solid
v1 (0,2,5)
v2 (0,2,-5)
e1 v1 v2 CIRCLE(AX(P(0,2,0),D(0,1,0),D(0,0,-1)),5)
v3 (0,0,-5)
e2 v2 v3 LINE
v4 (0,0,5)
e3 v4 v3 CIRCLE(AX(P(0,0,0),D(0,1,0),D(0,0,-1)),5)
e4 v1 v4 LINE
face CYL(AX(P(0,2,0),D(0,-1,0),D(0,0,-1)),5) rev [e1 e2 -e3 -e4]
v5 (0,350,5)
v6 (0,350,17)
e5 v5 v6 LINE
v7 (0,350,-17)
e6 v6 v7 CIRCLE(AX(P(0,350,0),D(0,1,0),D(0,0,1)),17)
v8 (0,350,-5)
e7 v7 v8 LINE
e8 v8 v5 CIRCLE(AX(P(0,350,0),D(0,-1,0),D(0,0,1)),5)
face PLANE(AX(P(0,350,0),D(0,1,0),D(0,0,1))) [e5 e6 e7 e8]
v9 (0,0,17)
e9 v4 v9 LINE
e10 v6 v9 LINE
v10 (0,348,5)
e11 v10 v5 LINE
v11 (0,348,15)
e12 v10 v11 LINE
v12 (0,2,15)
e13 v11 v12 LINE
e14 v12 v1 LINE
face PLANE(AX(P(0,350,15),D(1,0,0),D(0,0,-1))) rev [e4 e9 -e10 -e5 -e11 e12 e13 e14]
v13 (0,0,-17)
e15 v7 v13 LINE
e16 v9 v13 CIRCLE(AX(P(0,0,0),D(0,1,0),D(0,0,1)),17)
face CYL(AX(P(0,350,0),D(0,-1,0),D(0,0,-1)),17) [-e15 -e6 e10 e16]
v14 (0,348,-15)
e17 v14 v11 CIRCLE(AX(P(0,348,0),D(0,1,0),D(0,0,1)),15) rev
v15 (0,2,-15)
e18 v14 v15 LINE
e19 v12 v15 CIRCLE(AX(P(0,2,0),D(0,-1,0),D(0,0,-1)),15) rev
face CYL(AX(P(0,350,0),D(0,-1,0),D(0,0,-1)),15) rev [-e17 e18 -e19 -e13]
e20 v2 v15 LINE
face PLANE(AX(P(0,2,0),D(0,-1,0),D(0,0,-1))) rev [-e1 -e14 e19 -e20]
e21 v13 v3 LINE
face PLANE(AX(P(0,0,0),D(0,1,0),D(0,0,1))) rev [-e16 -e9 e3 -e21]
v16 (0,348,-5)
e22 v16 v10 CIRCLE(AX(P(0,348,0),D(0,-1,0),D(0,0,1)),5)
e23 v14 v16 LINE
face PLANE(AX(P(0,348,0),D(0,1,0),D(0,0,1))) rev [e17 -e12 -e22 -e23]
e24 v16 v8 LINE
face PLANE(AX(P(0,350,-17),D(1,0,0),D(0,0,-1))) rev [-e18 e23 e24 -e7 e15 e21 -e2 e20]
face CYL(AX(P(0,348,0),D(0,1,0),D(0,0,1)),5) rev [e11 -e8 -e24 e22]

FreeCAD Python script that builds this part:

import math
import FreeCAD as App
import Part
import Sketcher

doc = App.newDocument("Part")
body = doc.addObject("PartDesign::Body", "Body")

# Sketch on XZ plane
sketch1 = doc.addObject("Sketcher::SketchObject", "Sketch")
body.addObject(sketch1)
sketch1.AttachmentSupport = (doc.XZ_Plane, [""])
sketch1.MapMode = "FlatFace"
sketch1.addGeometry(Part.LineSegment(App.Vector(0, -17, 0), App.Vector(0, -15, 0)), False)
sketch1.addGeometry(Part.ArcOfCircle(Part.Circle(App.Vector(0, 0, 0), App.Vector(0, 0, 1), 15), math.radians(-90), math.radians(90)), False)
sketch1.addGeometry(Part.LineSegment(App.Vector(0, 15, 0), App.Vector(0, 17, 0)), False)
sketch1.addGeometry(Part.ArcOfCircle(Part.Circle(App.Vector(0, 0, 0), App.Vector(0, 0, 1), 17), math.radians(-90), math.radians(90)), False)
sketch1.addConstraint(Sketcher.Constraint("Coincident", 0, 2, 1, 1))
sketch1.addConstraint(Sketcher.Constraint("Coincident", 1, 2, 2, 1))
sketch1.addConstraint(Sketcher.Constraint("Coincident", 2, 2, 3, 2))
sketch1.addConstraint(Sketcher.Constraint("Coincident", 3, 1, 0, 1))
sketch1.addConstraint(Sketcher.Constraint("Vertical", 0))
sketch1.addConstraint(Sketcher.Constraint("Vertical", 2))
sketch1.addConstraint(Sketcher.Constraint("Coincident", 1, 3, -1, 1))
sketch1.addConstraint(Sketcher.Constraint("Coincident", 3, 3, -1, 1))
sketch1.addConstraint(Sketcher.Constraint("PointOnObject", 0, 2, -2))
sketch1.addConstraint(Sketcher.Constraint("PointOnObject", 1, 2, -2))
sketch1.addConstraint(Sketcher.Constraint("Radius", 1, 15.0))
sketch1.addConstraint(Sketcher.Constraint("Radius", 3, 17.0))
pad1 = doc.addObject("PartDesign::Pad", "Pad")
body.addObject(pad1)
pad1.Profile = sketch1
pad1.Length = 350
pad1.Reversed = True

# Sketch on XZ plane
sketch2 = doc.addObject("Sketcher::SketchObject", "Sketch001")
body.addObject(sketch2)
sketch2.AttachmentSupport = (doc.XZ_Plane, [""])
sketch2.MapMode = "FlatFace"
sketch2.AttachmentOffset = App.Placement(App.Vector(0, 0, -348), App.Rotation())
sketch2.addGeometry(Part.LineSegment(App.Vector(0, -17, 0), App.Vector(0, -5, 0)), False)
sketch2.addGeometry(Part.ArcOfCircle(Part.Circle(App.Vector(0, 0, 0), App.Vector(0, 0, 1), 5), math.radians(-90), math.radians(90)), False)
sketch2.addGeometry(Part.LineSegment(App.Vector(0, 5, 0), App.Vector(0, 17, 0)), False)
sketch2.addGeometry(Part.ArcOfCircle(Part.Circle(App.Vector(0, 0, 0), App.Vector(0, 0, 1), 17), math.radians(-90), math.radians(90)), False)
sketch2.addConstraint(Sketcher.Constraint("Coincident", 0, 2, 1, 1))
sketch2.addConstraint(Sketcher.Constraint("Coincident", 1, 2, 2, 1))
sketch2.addConstraint(Sketcher.Constraint("Coincident", 2, 2, 3, 2))
sketch2.addConstraint(Sketcher.Constraint("Coincident", 3, 1, 0, 1))
sketch2.addConstraint(Sketcher.Constraint("Vertical", 0))
sketch2.addConstraint(Sketcher.Constraint("Vertical", 2))
sketch2.addConstraint(Sketcher.Constraint("Coincident", 1, 3, -1, 1))
sketch2.addConstraint(Sketcher.Constraint("Coincident", 3, 3, -1, 1))
sketch2.addConstraint(Sketcher.Constraint("PointOnObject", 0, 2, -2))
sketch2.addConstraint(Sketcher.Constraint("PointOnObject", 1, 2, -2))
sketch2.addConstraint(Sketcher.Constraint("Radius", 1, 5.0))
sketch2.addConstraint(Sketcher.Constraint("Radius", 3, 17.0))
pad2 = doc.addObject("PartDesign::Pad", "Pad001")
body.addObject(pad2)
pad2.Profile = sketch2
pad2.Length = 2
pad2.Reversed = True

# Sketch on XZ plane
sketch3 = doc.addObject("Sketcher::SketchObject", "Sketch002")
body.addObject(sketch3)
sketch3.AttachmentSupport = (doc.XZ_Plane, [""])
sketch3.MapMode = "FlatFace"
sketch3.addGeometry(Part.LineSegment(App.Vector(0, 17, 0), App.Vector(0, 5, 0)), False)
sketch3.addGeometry(Part.ArcOfCircle(Part.Circle(App.Vector(0, 0, 0), App.Vector(0, 0, 1), 5), math.radians(-90), math.radians(90)), False)
sketch3.addGeometry(Part.LineSegment(App.Vector(0, -5, 0), App.Vector(0, -17, 0)), False)
sketch3.addGeometry(Part.ArcOfCircle(Part.Circle(App.Vector(0, 0, 0), App.Vector(0, 0, 1), 17), math.radians(-90), math.radians(90)), False)
sketch3.addConstraint(Sketcher.Constraint("Coincident", 0, 2, 1, 2))
sketch3.addConstraint(Sketcher.Constraint("Coincident", 1, 1, 2, 1))
sketch3.addConstraint(Sketcher.Constraint("Coincident", 2, 2, 3, 1))
sketch3.addConstraint(Sketcher.Constraint("Coincident", 3, 2, 0, 1))
sketch3.addConstraint(Sketcher.Constraint("Vertical", 0))
sketch3.addConstraint(Sketcher.Constraint("Vertical", 2))
sketch3.addConstraint(Sketcher.Constraint("Coincident", 1, 3, -1, 1))
sketch3.addConstraint(Sketcher.Constraint("Coincident", 3, 3, -1, 1))
sketch3.addConstraint(Sketcher.Constraint("PointOnObject", 0, 2, -2))
sketch3.addConstraint(Sketcher.Constraint("PointOnObject", 1, 1, -2))
sketch3.addConstraint(Sketcher.Constraint("Radius", 1, 5.0))
sketch3.addConstraint(Sketcher.Constraint("Radius", 3, 17.0))
pad3 = doc.addObject("PartDesign::Pad", "Pad002")
body.addObject(pad3)
pad3.Profile = sketch3
pad3.Length = 2
pad3.Reversed = True

doc.recompute()
